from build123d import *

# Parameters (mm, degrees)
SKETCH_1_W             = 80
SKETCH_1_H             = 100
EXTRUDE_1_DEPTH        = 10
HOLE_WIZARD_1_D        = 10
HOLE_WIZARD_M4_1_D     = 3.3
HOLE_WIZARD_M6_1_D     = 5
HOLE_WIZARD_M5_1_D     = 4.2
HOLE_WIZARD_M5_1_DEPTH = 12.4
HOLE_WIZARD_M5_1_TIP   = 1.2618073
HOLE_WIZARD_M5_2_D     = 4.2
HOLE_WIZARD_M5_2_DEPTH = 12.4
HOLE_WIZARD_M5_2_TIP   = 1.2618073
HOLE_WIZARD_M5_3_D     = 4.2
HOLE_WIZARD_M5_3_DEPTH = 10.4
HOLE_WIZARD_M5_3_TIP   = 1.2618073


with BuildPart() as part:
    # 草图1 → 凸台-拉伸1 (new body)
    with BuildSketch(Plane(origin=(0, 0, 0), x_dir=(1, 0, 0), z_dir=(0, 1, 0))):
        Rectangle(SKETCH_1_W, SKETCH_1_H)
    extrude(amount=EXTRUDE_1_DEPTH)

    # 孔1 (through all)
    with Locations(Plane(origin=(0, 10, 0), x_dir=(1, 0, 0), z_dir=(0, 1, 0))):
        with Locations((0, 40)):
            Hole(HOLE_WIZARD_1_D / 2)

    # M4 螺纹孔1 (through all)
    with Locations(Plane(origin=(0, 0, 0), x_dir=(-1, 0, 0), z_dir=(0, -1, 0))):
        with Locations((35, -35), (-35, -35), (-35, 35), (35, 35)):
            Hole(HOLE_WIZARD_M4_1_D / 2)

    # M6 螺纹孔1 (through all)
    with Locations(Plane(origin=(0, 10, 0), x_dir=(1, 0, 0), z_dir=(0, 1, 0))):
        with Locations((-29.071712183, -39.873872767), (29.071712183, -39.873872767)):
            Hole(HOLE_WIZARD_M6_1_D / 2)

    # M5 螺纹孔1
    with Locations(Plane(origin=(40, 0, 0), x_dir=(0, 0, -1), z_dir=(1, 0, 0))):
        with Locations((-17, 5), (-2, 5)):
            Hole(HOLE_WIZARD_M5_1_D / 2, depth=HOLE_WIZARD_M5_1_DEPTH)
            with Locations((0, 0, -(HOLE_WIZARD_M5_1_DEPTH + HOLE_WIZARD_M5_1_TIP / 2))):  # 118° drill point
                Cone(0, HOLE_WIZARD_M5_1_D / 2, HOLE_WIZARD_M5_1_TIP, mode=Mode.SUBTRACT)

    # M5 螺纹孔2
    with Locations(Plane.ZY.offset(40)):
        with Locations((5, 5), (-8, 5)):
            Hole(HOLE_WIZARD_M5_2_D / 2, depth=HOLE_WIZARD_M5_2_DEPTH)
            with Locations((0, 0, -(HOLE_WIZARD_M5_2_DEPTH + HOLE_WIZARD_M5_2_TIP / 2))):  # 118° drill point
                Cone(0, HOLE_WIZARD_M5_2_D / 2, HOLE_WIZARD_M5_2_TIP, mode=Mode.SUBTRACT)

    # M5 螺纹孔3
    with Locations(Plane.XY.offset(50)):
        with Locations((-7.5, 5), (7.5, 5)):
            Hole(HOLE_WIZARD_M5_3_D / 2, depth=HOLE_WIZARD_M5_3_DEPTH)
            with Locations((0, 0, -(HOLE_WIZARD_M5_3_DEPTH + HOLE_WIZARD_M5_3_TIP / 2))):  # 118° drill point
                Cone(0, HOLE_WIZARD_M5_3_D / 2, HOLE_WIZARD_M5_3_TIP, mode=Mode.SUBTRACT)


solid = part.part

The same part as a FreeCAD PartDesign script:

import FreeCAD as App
import Part
import Sketcher
from FreeCAD import Vector

doc = App.newDocument("Part")
body = doc.addObject("PartDesign::Body", "Body")

sketch1 = body.newObject("Sketcher::SketchObject", "Sketch")
sketch1.AttachmentSupport = (doc.getObject("XZ_Plane"), [""])
sketch1.MapMode = "FlatFace"
sketch1.addGeometry([
    Part.LineSegment(Vector(-40, -50, 0), Vector(-40, 50, 0)),
    Part.LineSegment(Vector(-40, 50, 0), Vector(40, 50, 0)),
    Part.LineSegment(Vector(40, 50, 0), Vector(40, -50, 0)),
    Part.LineSegment(Vector(40, -50, 0), Vector(-40, -50, 0)),
], False)
sketch1.addConstraint([
    Sketcher.Constraint("Coincident", 0, 2, 1, 1),
    Sketcher.Constraint("Coincident", 1, 2, 2, 1),
    Sketcher.Constraint("Coincident", 2, 2, 3, 1),
    Sketcher.Constraint("Coincident", 3, 2, 0, 1),
    Sketcher.Constraint("Vertical", 0),
    Sketcher.Constraint("Horizontal", 1),
    Sketcher.Constraint("Vertical", 2),
    Sketcher.Constraint("Horizontal", 3),
    Sketcher.Constraint("Symmetric", 0, 2, 2, 2, -1, 1),
    Sketcher.Constraint("DistanceX", 1, 1, 1, 2, 80.0),
    Sketcher.Constraint("DistanceY", 0, 1, 0, 2, 100.0),
])
pad1 = body.newObject("PartDesign::Pad", "Pad")
pad1.Profile = sketch1
pad1.Length = 10
pad1.Reversed = True

sketch2 = body.newObject("Sketcher::SketchObject", "Sketch001")
sketch2.AttachmentSupport = (doc.getObject("XZ_Plane"), [""])
sketch2.MapMode = "FlatFace"
sketch2.AttachmentOffset = App.Placement(Vector(0, 0, -10), App.Rotation())
sketch2.addGeometry(Part.Circle(Vector(0, -40, 0), Vector(0, 0, 1), 5), False)
sketch2.addConstraint([
    Sketcher.Constraint("PointOnObject", 0, 3, -2),
    Sketcher.Constraint("Diameter", 0, 10.0),
    Sketcher.Constraint("DistanceY", 0, 3, -1, 1, 40.0),
])
doc.recompute()
hole = body.newObject("PartDesign::Hole", "Hole")
hole.Profile = sketch2
hole.ThreadType = "None"
hole.Diameter = 10
hole.DepthType = "ThroughAll"
hole.Reversed = True

sketch3 = body.newObject("Sketcher::SketchObject", "Sketch002")
sketch3.AttachmentSupport = (doc.getObject("XZ_Plane"), [""])
sketch3.MapMode = "FlatFace"
sketch3.addGeometry([
    Part.Circle(Vector(-35, 35, 0), Vector(0, 0, 1), 1.6),
    Part.Circle(Vector(35, 35, 0), Vector(0, 0, 1), 1.6),
    Part.Circle(Vector(35, -35, 0), Vector(0, 0, 1), 1.6),
    Part.Circle(Vector(-35, -35, 0), Vector(0, 0, 1), 1.6),
], False)
sketch3.addConstraint([
    Sketcher.Constraint("Equal", 0, 1),
    Sketcher.Constraint("Equal", 1, 2),
    Sketcher.Constraint("Equal", 2, 3),
    Sketcher.Constraint("Symmetric", 0, 3, 2, 3, -1, 1),
    Sketcher.Constraint("Symmetric", 1, 3, 3, 3, -1, 1),
    Sketcher.Constraint("Symmetric", 0, 3, 1, 3, -2),
    Sketcher.Constraint("Diameter", 0, 3.3),
    Sketcher.Constraint("DistanceX", 0, 3, -1, 1, 35.0),
    Sketcher.Constraint("DistanceY", -1, 1, 0, 3, 35.0),
])
doc.recompute()
hole2 = body.newObject("PartDesign::Hole", "Hole001")
hole2.Profile = sketch3
hole2.ThreadType = "None"
hole2.Diameter = 3.3
hole2.DepthType = "ThroughAll"

sketch4 = body.newObject("Sketcher::SketchObject", "Sketch003")
sketch4.AttachmentSupport = (doc.getObject("XZ_Plane"), [""])
sketch4.MapMode = "FlatFace"
sketch4.AttachmentOffset = App.Placement(Vector(0, 0, -10), App.Rotation())
sketch4.addGeometry([
    Part.Circle(Vector(-29.1, 39.9, 0), Vector(0, 0, 1), 2.5),
    Part.Circle(Vector(29.1, 39.9, 0), Vector(0, 0, 1), 2.5),
], False)
sketch4.addConstraint([
    Sketcher.Constraint("Equal", 0, 1),
    Sketcher.Constraint("Symmetric", 0, 3, 1, 3, -2),
    Sketcher.Constraint("Diameter", 0, 5.0),
    Sketcher.Constraint("DistanceX", 0, 3, -1, 1, 29.071712),
    Sketcher.Constraint("DistanceY", -1, 1, 0, 3, 39.873873),
])
doc.recompute()
hole3 = body.newObject("PartDesign::Hole", "Hole002")
hole3.Profile = sketch4
hole3.ThreadType = "None"
hole3.Diameter = 5
hole3.DepthType = "ThroughAll"
hole3.Reversed = True

sketch5 = body.newObject("Sketcher::SketchObject", "Sketch004")
sketch5.AttachmentSupport = (doc.getObject("YZ_Plane"), [""])
sketch5.MapMode = "FlatFace"
sketch5.AttachmentOffset = App.Placement(Vector(0, 0, 40), App.Rotation())
sketch5.addGeometry([
    Part.Circle(Vector(5, 17, 0), Vector(0, 0, 1), 2.1),
    Part.Circle(Vector(5, 2, 0), Vector(0, 0, 1), 2.1),
], False)
sketch5.addConstraint([
    Sketcher.Constraint("Equal", 0, 1),
    Sketcher.Constraint("Vertical", 0, 3, 1, 3),
    Sketcher.Constraint("Diameter", 0, 4.2),
    Sketcher.Constraint("DistanceX", -1, 1, 0, 3, 5.0),
    Sketcher.Constraint("DistanceY", -1, 1, 0, 3, 17.0),
    Sketcher.Constraint("DistanceY", -1, 1, 1, 3, 2.0),
])
doc.recompute()
hole4 = body.newObject("PartDesign::Hole", "Hole003")
hole4.Profile = sketch5
hole4.ThreadType = "None"
hole4.Diameter = 4.2
hole4.DepthType = "Dimension"
hole4.Depth = 12.4
hole4.DrillPoint = "Angled"
hole4.DrillPointAngle = 118

sketch6 = body.newObject("Sketcher::SketchObject", "Sketch005")
sketch6.AttachmentSupport = (doc.getObject("YZ_Plane"), [""])
sketch6.MapMode = "FlatFace"
sketch6.AttachmentOffset = App.Placement(Vector(0, 0, -40), App.Rotation())
sketch6.addGeometry([
    Part.Circle(Vector(5, 5, 0), Vector(0, 0, 1), 2.1),
    Part.Circle(Vector(5, -8, 0), Vector(0, 0, 1), 2.1),
], False)
sketch6.addConstraint([
    Sketcher.Constraint("Equal", 0, 1),
    Sketcher.Constraint("Vertical", 0, 3, 1, 3),
    Sketcher.Constraint("Diameter", 0, 4.2),
    Sketcher.Constraint("DistanceX", -1, 1, 0, 3, 5.0),
    Sketcher.Constraint("DistanceY", -1, 1, 0, 3, 5.0),
    Sketcher.Constraint("DistanceY", 1, 3, -1, 1, 8.0),
])
doc.recompute()
hole5 = body.newObject("PartDesign::Hole", "Hole004")
hole5.Profile = sketch6
hole5.ThreadType = "None"
hole5.Diameter = 4.2
hole5.DepthType = "Dimension"
hole5.Depth = 12.4
hole5.DrillPoint = "Angled"
hole5.DrillPointAngle = 118
hole5.Reversed = True

sketch7 = body.newObject("Sketcher::SketchObject", "Sketch006")
sketch7.AttachmentSupport = (doc.getObject("XY_Plane"), [""])
sketch7.MapMode = "FlatFace"
sketch7.AttachmentOffset = App.Placement(Vector(0, 0, 50), App.Rotation())
sketch7.addGeometry([
    Part.Circle(Vector(-7.5, 5, 0), Vector(0, 0, 1), 2.1),
    Part.Circle(Vector(7.5, 5, 0), Vector(0, 0, 1), 2.1),
], False)
sketch7.addConstraint([
    Sketcher.Constraint("Equal", 0, 1),
    Sketcher.Constraint("Symmetric", 0, 3, 1, 3, -2),
    Sketcher.Constraint("Diameter", 0, 4.2),
    Sketcher.Constraint("DistanceY", -1, 1, 0, 3, 5.0),
    Sketcher.Constraint("DistanceX", 0, 3, 1, 3, 15.0),
])
doc.recompute()
hole6 = body.newObject("PartDesign::Hole", "Hole005")
hole6.Profile = sketch7
hole6.ThreadType = "None"
hole6.Diameter = 4.2
hole6.DepthType = "Dimension"
hole6.Depth = 10.4
hole6.DrillPoint = "Angled"
hole6.DrillPointAngle = 118

doc.recompute()
